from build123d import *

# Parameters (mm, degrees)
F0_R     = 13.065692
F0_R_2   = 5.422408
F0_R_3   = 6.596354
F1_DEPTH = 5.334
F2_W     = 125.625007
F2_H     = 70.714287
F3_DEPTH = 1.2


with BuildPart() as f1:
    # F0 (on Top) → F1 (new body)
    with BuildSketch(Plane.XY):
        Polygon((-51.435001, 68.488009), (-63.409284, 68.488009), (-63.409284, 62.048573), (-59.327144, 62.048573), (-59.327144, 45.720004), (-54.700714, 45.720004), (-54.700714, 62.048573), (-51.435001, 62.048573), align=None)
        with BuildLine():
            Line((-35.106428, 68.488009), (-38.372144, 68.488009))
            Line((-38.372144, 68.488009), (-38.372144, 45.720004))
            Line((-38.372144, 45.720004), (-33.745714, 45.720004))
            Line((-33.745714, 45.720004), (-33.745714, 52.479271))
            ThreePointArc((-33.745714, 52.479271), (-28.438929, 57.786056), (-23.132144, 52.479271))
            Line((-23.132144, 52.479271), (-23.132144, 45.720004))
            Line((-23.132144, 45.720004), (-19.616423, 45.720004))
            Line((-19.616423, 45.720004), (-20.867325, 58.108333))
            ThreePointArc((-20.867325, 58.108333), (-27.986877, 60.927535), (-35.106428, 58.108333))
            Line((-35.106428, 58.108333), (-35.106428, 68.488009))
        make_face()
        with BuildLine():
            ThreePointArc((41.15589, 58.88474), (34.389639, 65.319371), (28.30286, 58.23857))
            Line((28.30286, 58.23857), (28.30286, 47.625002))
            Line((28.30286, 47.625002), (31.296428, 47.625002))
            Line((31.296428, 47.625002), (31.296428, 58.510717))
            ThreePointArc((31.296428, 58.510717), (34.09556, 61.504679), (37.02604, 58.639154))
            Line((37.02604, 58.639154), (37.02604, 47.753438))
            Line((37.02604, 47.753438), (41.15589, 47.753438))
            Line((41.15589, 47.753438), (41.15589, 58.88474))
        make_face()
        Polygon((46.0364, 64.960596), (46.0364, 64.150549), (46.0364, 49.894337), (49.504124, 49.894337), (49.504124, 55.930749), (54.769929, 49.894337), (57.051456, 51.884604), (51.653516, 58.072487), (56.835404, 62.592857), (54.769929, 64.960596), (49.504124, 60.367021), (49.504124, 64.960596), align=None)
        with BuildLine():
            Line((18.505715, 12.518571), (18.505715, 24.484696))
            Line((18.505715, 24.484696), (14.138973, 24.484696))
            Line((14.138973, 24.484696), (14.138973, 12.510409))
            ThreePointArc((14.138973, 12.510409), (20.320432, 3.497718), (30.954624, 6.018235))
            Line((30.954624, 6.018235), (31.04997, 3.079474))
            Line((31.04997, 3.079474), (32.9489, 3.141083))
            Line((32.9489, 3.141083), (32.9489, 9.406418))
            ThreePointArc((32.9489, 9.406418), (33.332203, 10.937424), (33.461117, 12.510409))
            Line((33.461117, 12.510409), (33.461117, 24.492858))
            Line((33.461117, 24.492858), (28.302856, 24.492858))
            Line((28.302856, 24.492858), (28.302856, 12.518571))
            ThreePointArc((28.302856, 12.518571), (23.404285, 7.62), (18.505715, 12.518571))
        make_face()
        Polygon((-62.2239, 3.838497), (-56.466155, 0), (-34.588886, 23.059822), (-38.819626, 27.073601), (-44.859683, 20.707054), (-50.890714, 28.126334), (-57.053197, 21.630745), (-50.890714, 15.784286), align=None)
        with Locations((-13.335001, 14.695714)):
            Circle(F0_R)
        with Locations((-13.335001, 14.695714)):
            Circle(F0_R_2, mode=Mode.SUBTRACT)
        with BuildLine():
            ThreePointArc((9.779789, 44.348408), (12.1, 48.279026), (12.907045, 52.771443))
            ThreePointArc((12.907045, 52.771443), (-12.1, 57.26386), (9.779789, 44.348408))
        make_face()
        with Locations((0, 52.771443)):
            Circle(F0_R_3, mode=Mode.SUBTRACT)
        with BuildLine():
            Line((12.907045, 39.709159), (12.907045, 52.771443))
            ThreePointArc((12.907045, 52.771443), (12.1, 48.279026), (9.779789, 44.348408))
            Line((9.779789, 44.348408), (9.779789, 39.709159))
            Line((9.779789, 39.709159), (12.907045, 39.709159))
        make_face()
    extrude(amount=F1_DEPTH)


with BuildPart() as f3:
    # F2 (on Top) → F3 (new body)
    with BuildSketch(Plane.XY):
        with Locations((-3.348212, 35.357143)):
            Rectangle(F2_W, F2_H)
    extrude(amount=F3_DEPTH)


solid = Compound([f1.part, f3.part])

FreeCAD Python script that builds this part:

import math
import FreeCAD as App
import Part
import Sketcher
Q = App.Units.Quantity

doc = App.newDocument("Part")
body = doc.addObject("PartDesign::Body", "Body")
body.AllowCompound = True

# Sketch on XY plane
sketch1 = body.newObject("Sketcher::SketchObject", "Sketch")
sketch1.AttachmentSupport = (doc.getObject("XY_Plane"), [""])
sketch1.MapMode = "FlatFace"
sketch1.addGeometry([
    Part.LineSegment(App.Vector(-51.435001, 68.488009, 0), App.Vector(-63.409284, 68.488009, 0)),  # 0
    Part.LineSegment(App.Vector(-63.409284, 68.488009, 0), App.Vector(-63.409284, 62.048573, 0)),  # 1
    Part.LineSegment(App.Vector(-63.409284, 62.048573, 0), App.Vector(-59.327144, 62.048573, 0)),  # 2
    Part.LineSegment(App.Vector(-59.327144, 62.048573, 0), App.Vector(-59.327144, 45.720004, 0)),  # 3
    Part.LineSegment(App.Vector(-59.327144, 45.720004, 0), App.Vector(-54.700714, 45.720004, 0)),  # 4
    Part.LineSegment(App.Vector(-54.700714, 45.720004, 0), App.Vector(-54.700714, 62.048573, 0)),  # 5
    Part.LineSegment(App.Vector(-54.700714, 62.048573, 0), App.Vector(-51.435001, 62.048573, 0)),  # 6
    Part.LineSegment(App.Vector(-51.435001, 62.048573, 0), App.Vector(-51.435001, 68.488009, 0)),  # 7
    Part.LineSegment(App.Vector(-35.106428, 68.488009, 0), App.Vector(-38.372144, 68.488009, 0)),  # 8
    Part.LineSegment(App.Vector(-38.372144, 68.488009, 0), App.Vector(-38.372144, 45.720004, 0)),  # 9
    Part.LineSegment(App.Vector(-38.372144, 45.720004, 0), App.Vector(-33.745714, 45.720004, 0)),  # 10
    Part.LineSegment(App.Vector(-33.745714, 45.720004, 0), App.Vector(-33.745714, 52.479271, 0)),  # 11
    Part.ArcOfCircle(Part.Circle(App.Vector(-28.438929, 52.479271, 0), App.Vector(0, 0, 1), 5.306785), math.radians(0), math.radians(180)),  # 12
    Part.LineSegment(App.Vector(-23.132144, 52.479271, 0), App.Vector(-23.132144, 45.720004, 0)),  # 13
    Part.LineSegment(App.Vector(-23.132144, 45.720004, 0), App.Vector(-19.616423, 45.720004, 0)),  # 14
    Part.LineSegment(App.Vector(-19.616423, 45.720004, 0), App.Vector(-20.867325, 58.108333, 0)),  # 15
    Part.ArcOfCircle(Part.Circle(App.Vector(-27.986877, 50.528154, 0), App.Vector(0, 0, 1), 10.399381), math.radians(46.794822), math.radians(133.205178)),  # 16
    Part.LineSegment(App.Vector(-35.106428, 58.108333, 0), App.Vector(-35.106428, 68.488009, 0)),  # 17
    Part.ArcOfCircle(Part.Circle(App.Vector(34.713132, 58.88474, 0), App.Vector(0, 0, 1), 6.442758), math.radians(0.000002), math.radians(185.756099)),  # 18
    Part.LineSegment(App.Vector(28.30286, 58.23857, 0), App.Vector(28.30286, 47.625002, 0)),  # 19
    Part.LineSegment(App.Vector(28.30286, 47.625002, 0), App.Vector(31.296428, 47.625002, 0)),  # 20
    Part.LineSegment(App.Vector(31.296428, 47.625002, 0), App.Vector(31.296428, 58.510717, 0)),  # 21
    Part.ArcOfCircle(Part.Circle(App.Vector(34.159794, 58.639153, 0), App.Vector(0, 0, 1), 2.866246), math.radians(0.000013), math.radians(182.568281)),  # 22
    Part.LineSegment(App.Vector(37.02604, 58.639154, 0), App.Vector(37.02604, 47.753438, 0)),  # 23
    Part.LineSegment(App.Vector(37.02604, 47.753438, 0), App.Vector(41.15589, 47.753438, 0)),  # 24
    Part.LineSegment(App.Vector(41.15589, 47.753438, 0), App.Vector(41.15589, 58.88474, 0)),  # 25
    Part.LineSegment(App.Vector(46.0364, 64.960596, 0), App.Vector(46.0364, 49.894337, 0)),  # 26
    Part.LineSegment(App.Vector(46.0364, 49.894337, 0), App.Vector(49.504124, 49.894337, 0)),  # 27
    Part.LineSegment(App.Vector(49.504124, 49.894337, 0), App.Vector(49.504124, 55.930749, 0)),  # 28
    Part.LineSegment(App.Vector(49.504124, 55.930749, 0), App.Vector(54.769929, 49.894337, 0)),  # 29
    Part.LineSegment(App.Vector(54.769929, 49.894337, 0), App.Vector(57.051456, 51.884604, 0)),  # 30
    Part.LineSegment(App.Vector(57.051456, 51.884604, 0), App.Vector(51.653516, 58.072487, 0)),  # 31
    Part.LineSegment(App.Vector(51.653516, 58.072487, 0), App.Vector(56.835404, 62.592857, 0)),  # 32
    Part.LineSegment(App.Vector(56.835404, 62.592857, 0), App.Vector(54.769929, 64.960596, 0)),  # 33
    Part.LineSegment(App.Vector(54.769929, 64.960596, 0), App.Vector(49.504124, 60.367021, 0)),  # 34
    Part.LineSegment(App.Vector(49.504124, 60.367021, 0), App.Vector(49.504124, 64.960596, 0)),  # 35
    Part.LineSegment(App.Vector(49.504124, 64.960596, 0), App.Vector(46.0364, 64.960596, 0)),  # 36
    Part.LineSegment(App.Vector(18.505715, 12.518571, 0), App.Vector(18.505715, 24.484696, 0)),  # 37
    Part.LineSegment(App.Vector(18.505715, 24.484696, 0), App.Vector(14.138973, 24.484696, 0)),  # 38
    Part.LineSegment(App.Vector(14.138973, 24.484696, 0), App.Vector(14.138973, 12.510409, 0)),  # 39
    Part.ArcOfCircle(Part.Circle(App.Vector(23.800046, 12.51041, 0), App.Vector(0, 0, 1), 9.661073), math.radians(-179.999995), math.radians(-42.221085)),  # 40
    Part.LineSegment(App.Vector(30.954624, 6.018235, 0), App.Vector(31.04997, 3.079474, 0)),  # 41
    Part.LineSegment(App.Vector(31.04997, 3.079474, 0), App.Vector(32.9489, 3.141083, 0)),  # 42
    Part.LineSegment(App.Vector(32.9489, 3.141083, 0), App.Vector(32.9489, 9.406418, 0)),  # 43
    Part.ArcOfCircle(Part.Circle(App.Vector(23.800075, 12.510405, 0), App.Vector(0, 0, 1), 9.661042), math.radians(-18.740898), math.radians(0.000026)),  # 44
    Part.LineSegment(App.Vector(33.461117, 12.510409, 0), App.Vector(33.461117, 24.492858, 0)),  # 45
    Part.LineSegment(App.Vector(33.461117, 24.492858, 0), App.Vector(28.302856, 24.492858, 0)),  # 46
    Part.LineSegment(App.Vector(28.302856, 24.492858, 0), App.Vector(28.302856, 12.518571, 0)),  # 47
    Part.ArcOfCircle(Part.Circle(App.Vector(23.404286, 12.51857, 0), App.Vector(0, 0, 1), 4.89857), math.radians(179.999994), math.radians(360.000006)),  # 48
    Part.LineSegment(App.Vector(-62.2239, 3.838497, 0), App.Vector(-56.466155, 0, 0)),  # 49
    Part.LineSegment(App.Vector(-56.466155, 0, 0), App.Vector(-34.588886, 23.059822, 0)),  # 50
    Part.LineSegment(App.Vector(-34.588886, 23.059822, 0), App.Vector(-38.819626, 27.073601, 0)),  # 51
    Part.LineSegment(App.Vector(-38.819626, 27.073601, 0), App.Vector(-44.859683, 20.707054, 0)),  # 52
    Part.LineSegment(App.Vector(-44.859683, 20.707054, 0), App.Vector(-50.890714, 28.126334, 0)),  # 53
    Part.LineSegment(App.Vector(-50.890714, 28.126334, 0), App.Vector(-57.053197, 21.630745, 0)),  # 54
    Part.LineSegment(App.Vector(-57.053197, 21.630745, 0), App.Vector(-50.890714, 15.784286, 0)),  # 55
    Part.LineSegment(App.Vector(-50.890714, 15.784286, 0), App.Vector(-62.2239, 3.838497, 0)),  # 56
    Part.Circle(App.Vector(-13.335001, 14.695714, 0), App.Vector(0, 0, 1), 13.065692),  # 57
    Part.Circle(App.Vector(-13.335001, 14.695714, 0), App.Vector(0, 0, 1), 5.422408),  # 58
    Part.ArcOfCircle(Part.Circle(App.Vector(0, 52.771444, 0), App.Vector(0, 0, 1), 12.907045), math.radians(-0.000005), math.radians(319.262675)),  # 59
    Part.LineSegment(App.Vector(9.779789, 44.348408, 0), App.Vector(9.779789, 39.709159, 0)),  # 60
    Part.LineSegment(App.Vector(9.779789, 39.709159, 0), App.Vector(12.907045, 39.709159, 0)),  # 61
    Part.LineSegment(App.Vector(12.907045, 39.709159, 0), App.Vector(12.907045, 52.771443, 0)),  # 62
    Part.Circle(App.Vector(0, 52.771443, 0), App.Vector(0, 0, 1), 6.596354),  # 63
], False)
sketch1.addConstraint([
    Sketcher.Constraint("Coincident", 0, 2, 1, 1),
    Sketcher.Constraint("Coincident", 1, 2, 2, 1),
    Sketcher.Constraint("Coincident", 2, 2, 3, 1),
    Sketcher.Constraint("Coincident", 3, 2, 4, 1),
    Sketcher.Constraint("Coincident", 4, 2, 5, 1),
    Sketcher.Constraint("Coincident", 5, 2, 6, 1),
    Sketcher.Constraint("Coincident", 6, 2, 7, 1),
    Sketcher.Constraint("Coincident", 7, 2, 0, 1),
    Sketcher.Constraint("Coincident", 8, 2, 9, 1),
    Sketcher.Constraint("Coincident", 9, 2, 10, 1),
    Sketcher.Constraint("Coincident", 10, 2, 11, 1),
    Sketcher.Constraint("Tangent", 11, 2, 12, 2),
    Sketcher.Constraint("Tangent", 12, 1, 13, 1),
    Sketcher.Constraint("Coincident", 13, 2, 14, 1),
    Sketcher.Constraint("Coincident", 14, 2, 15, 1),
    Sketcher.Constraint("Coincident", 15, 2, 16, 1),
    Sketcher.Constraint("Coincident", 16, 2, 17, 1),
    Sketcher.Constraint("Coincident", 17, 2, 8, 1),
    Sketcher.Constraint("Coincident", 18, 2, 19, 1),
    Sketcher.Constraint("Coincident", 19, 2, 20, 1),
    Sketcher.Constraint("Coincident", 20, 2, 21, 1),
    Sketcher.Constraint("Coincident", 21, 2, 22, 2),
    Sketcher.Constraint("Tangent", 22, 1, 23, 1),
    Sketcher.Constraint("Coincident", 23, 2, 24, 1),
    Sketcher.Constraint("Coincident", 24, 2, 25, 1),
    Sketcher.Constraint("Tangent", 25, 2, 18, 1),
    Sketcher.Constraint("Coincident", 26, 2, 27, 1),
    Sketcher.Constraint("Coincident", 27, 2, 28, 1),
    Sketcher.Constraint("Coincident", 28, 2, 29, 1),
    Sketcher.Constraint("Coincident", 29, 2, 30, 1),
    Sketcher.Constraint("Coincident", 30, 2, 31, 1),
    Sketcher.Constraint("Coincident", 31, 2, 32, 1),
    Sketcher.Constraint("Coincident", 32, 2, 33, 1),
    Sketcher.Constraint("Coincident", 33, 2, 34, 1),
    Sketcher.Constraint("Coincident", 34, 2, 35, 1),
    Sketcher.Constraint("Coincident", 35, 2, 36, 1),
    Sketcher.Constraint("Coincident", 36, 2, 26, 1),
    Sketcher.Constraint("Coincident", 37, 2, 38, 1),
    Sketcher.Constraint("Coincident", 38, 2, 39, 1),
    Sketcher.Constraint("Tangent", 39, 2, 40, 1),
    Sketcher.Constraint("Coincident", 40, 2, 41, 1),
    Sketcher.Constraint("Coincident", 41, 2, 42, 1),
    Sketcher.Constraint("Coincident", 42, 2, 43, 1),
    Sketcher.Constraint("Coincident", 43, 2, 44, 1),
    Sketcher.Constraint("Tangent", 44, 2, 45, 1),
    Sketcher.Constraint("Coincident", 45, 2, 46, 1),
    Sketcher.Constraint("Coincident", 46, 2, 47, 1),
    Sketcher.Constraint("Tangent", 47, 2, 48, 2),
    Sketcher.Constraint("Tangent", 48, 1, 37, 1),
    Sketcher.Constraint("Coincident", 49, 2, 50, 1),
    Sketcher.Constraint("Coincident", 50, 2, 51, 1),
    Sketcher.Constraint("Coincident", 51, 2, 52, 1),
    Sketcher.Constraint("Coincident", 52, 2, 53, 1),
    Sketcher.Constraint("Coincident", 53, 2, 54, 1),
    Sketcher.Constraint("Coincident", 54, 2, 55, 1),
    Sketcher.Constraint("Coincident", 55, 2, 56, 1),
    Sketcher.Constraint("Coincident", 56, 2, 49, 1),
    Sketcher.Constraint("Coincident", 59, 2, 60, 1),
    Sketcher.Constraint("Coincident", 60, 2, 61, 1),
    Sketcher.Constraint("Coincident", 61, 2, 62, 1),
    Sketcher.Constraint("Tangent", 62, 2, 59, 1),
    Sketcher.Constraint("Horizontal", 0),
    Sketcher.Constraint("Vertical", 1),
    Sketcher.Constraint("Horizontal", 2),
    Sketcher.Constraint("Vertical", 3),
    Sketcher.Constraint("Horizontal", 4),
    Sketcher.Constraint("Vertical", 5),
    Sketcher.Constraint("Horizontal", 6),
    Sketcher.Constraint("Vertical", 7),
    Sketcher.Constraint("Horizontal", 8),
    Sketcher.Constraint("Vertical", 9),
    Sketcher.Constraint("Horizontal", 10),
    Sketcher.Constraint("Vertical", 11),
    Sketcher.Constraint("Vertical", 13),
    Sketcher.Constraint("Horizontal", 14),
    Sketcher.Constraint("Vertical", 17),
    Sketcher.Constraint("Vertical", 19),
    Sketcher.Constraint("Horizontal", 20),
    Sketcher.Constraint("Vertical", 21),
    Sketcher.Constraint("Vertical", 23),
    Sketcher.Constraint("Horizontal", 24),
    Sketcher.Constraint("Vertical", 25),
    Sketcher.Constraint("Vertical", 26),
    Sketcher.Constraint("Horizontal", 27),
    Sketcher.Constraint("Vertical", 28),
    Sketcher.Constraint("Vertical", 35),
    Sketcher.Constraint("Horizontal", 36),
    Sketcher.Constraint("Vertical", 37),
    Sketcher.Constraint("Horizontal", 38),
    Sketcher.Constraint("Vertical", 39),
    Sketcher.Constraint("Vertical", 43),
    Sketcher.Constraint("Vertical", 45),
    Sketcher.Constraint("Horizontal", 46),
    Sketcher.Constraint("Vertical", 47),
    Sketcher.Constraint("Vertical", 60),
    Sketcher.Constraint("Horizontal", 61),
    Sketcher.Constraint("Vertical", 62),
    Sketcher.Constraint("Coincident", 58, 3, 57, 3),
    Sketcher.Constraint("Coincident", 63, 3, 59, 3),
    Sketcher.Constraint("PointOnObject", 59, 3, -2),
    Sketcher.Constraint("PointOnObject", 49, 2, -1),
    Sketcher.Constraint("Perpendicular", 29, 30),
    Sketcher.Constraint("Perpendicular", 30, 31),
    Sketcher.Constraint("Perpendicular", 31, 32),
    Sketcher.Constraint("Perpendicular", 32, 33),
    Sketcher.Constraint("Perpendicular", 33, 34),
    Sketcher.Constraint("Perpendicular", 41, 42),
    Sketcher.Constraint("Perpendicular", 50, 51),
    Sketcher.Constraint("Perpendicular", 51, 52),
    Sketcher.Constraint("Parallel", 52, 54),
    Sketcher.Constraint("Perpendicular", 54, 55),
    Sketcher.Constraint("Perpendicular", 55, 56),
    Sketcher.Constraint("Horizontal", 2, 2, 5, 2),
    Sketcher.Constraint("Horizontal", 7, 2, 8, 2),
    Sketcher.Constraint("Horizontal", 4, 2, 9, 2),
    Sketcher.Constraint("Horizontal", 10, 2, 13, 2),
    Sketcher.Constraint("Horizontal", 15, 2, 16, 2),
    Sketcher.Constraint("Horizontal", 27, 2, 29, 2),
    Sketcher.Constraint("Horizontal", 33, 2, 35, 2),
    Sketcher.Constraint("Horizontal", 39, 2, 44, 2),
    Sketcher.Constraint("Vertical", 29, 2, 33, 2),
    Sketcher.Constraint("Vertical", 28, 2, 34, 2),
    Sketcher.Constraint("Vertical", 53, 2, 55, 2),
    Sketcher.Constraint("Equal", 4, 10),
    Sketcher.Constraint("Equal", 21, 23),
    Sketcher.Constraint("Equal", 39, 47),
    Sketcher.Constraint("Radius", 16, Q("10.399381 mm")),
    Sketcher.Constraint("Radius", 44, Q("9.661042 mm")),
    Sketcher.Constraint("Radius", 48, Q("4.89857 mm")),
    Sketcher.Constraint("Diameter", 57, Q("26.131384 mm")),
    Sketcher.Constraint("Diameter", 58, Q("10.844816 mm")),
    Sketcher.Constraint("Diameter", 63, Q("13.192708 mm")),
    Sketcher.Constraint("DistanceY", 25, 1, 25, 2, Q("11.131302 mm")),
    Sketcher.Constraint("DistanceX", 57, 3, -1, 1, Q("13.335001 mm")),
    Sketcher.Constraint("DistanceX", 6, 2, -1, 1, Q("51.435001 mm")),
    Sketcher.Constraint("Radius", 12, Q("5.306785 mm")),
    Sketcher.Constraint("Radius", 18, Q("6.442758 mm")),
    Sketcher.Constraint("Radius", 22, Q("2.866246 mm")),
    Sketcher.Constraint("Radius", 40, Q("9.661073 mm")),
    Sketcher.Constraint("Radius", 59, Q("12.907045 mm")),
    Sketcher.Constraint("DistanceX", 2, 1, 2, 2, Q("4.08214 mm")),
    Sketcher.Constraint("DistanceX", 4, 1, 4, 2, Q("4.62643 mm")),
    Sketcher.Constraint("DistanceX", 14, 1, 14, 2, Q("3.515721 mm")),
    Sketcher.Constraint("DistanceX", 24, 1, 24, 2, Q("4.12985 mm")),
    Sketcher.Constraint("DistanceX", 38, 2, 38, 1, Q("4.366742 mm")),
    Sketcher.Constraint("DistanceX", 46, 2, 46, 1, Q("5.158261 mm")),
    Sketcher.Constraint("DistanceY", 3, 2, 3, 1, Q("16.328569 mm")),
    Sketcher.Constraint("DistanceY", 19, 2, 19, 1, Q("10.613568 mm")),
    Sketcher.Constraint("DistanceY", 26, 2, 26, 1, Q("15.066259 mm")),
    Sketcher.Constraint("DistanceY", 28, 1, 28, 2, Q("6.036412 mm")),
    Sketcher.Constraint("DistanceY", 45, 1, 45, 2, Q("11.982449 mm")),
    Sketcher.Constraint("DistanceY", 60, 2, 60, 1, Q("4.639249 mm")),
    Sketcher.Constraint("DistanceX", -1, 1, 26, 2, Q("46.0364 mm")),
    Sketcher.Constraint("DistanceX", -1, 1, 42, 2, Q("32.9489 mm")),
    Sketcher.Constraint("DistanceY", -1, 1, 51, 2, Q("27.073601 mm")),
    Sketcher.Constraint("DistanceX", 56, 2, -1, 1, Q("62.2239 mm")),
    Sketcher.Constraint("Distance", 29, Q("8.010429 mm")),
    Sketcher.Constraint("Distance", 32, Q("6.87646 mm")),
    Sketcher.Constraint("Distance", 42, Q("1.899929 mm")),
    Sketcher.Constraint("Distance", 49, Q("6.919948 mm")),
    Sketcher.Constraint("Distance", 52, Q("8.775831 mm")),
    Sketcher.Constraint("Distance", 53, Q("9.561331 mm")),
    Sketcher.Constraint("Distance", 56, Q("16.46642 mm")),
    Sketcher.Constraint("DistanceX", 0, 2, 0, 1, Q("11.974283 mm")),
    Sketcher.Constraint("DistanceX", 8, 2, 8, 1, Q("3.265716 mm")),
    Sketcher.Constraint("DistanceX", 20, 1, 20, 2, Q("2.993568 mm")),
    Sketcher.Constraint("DistanceX", 27, 1, 27, 2, Q("3.467724 mm")),
    Sketcher.Constraint("DistanceX", 61, 1, 61, 2, Q("3.127256 mm")),
    Sketcher.Constraint("DistanceY", 1, 2, 1, 1, Q("6.439436 mm")),
    Sketcher.Constraint("DistanceY", 11, 1, 11, 2, Q("6.759267 mm")),
    Sketcher.Constraint("DistanceY", 17, 1, 17, 2, Q("10.379676 mm")),
    Sketcher.Constraint("DistanceY", 21, 1, 21, 2, Q("10.885715 mm")),
    Sketcher.Constraint("DistanceY", 37, 1, 37, 2, Q("11.966125 mm")),
    Sketcher.Constraint("DistanceY", 43, 1, 43, 2, Q("6.265335 mm")),
    Sketcher.Constraint("DistanceX", 12, 3, -1, 1, Q("28.438929 mm")),
    Sketcher.Constraint("DistanceY", -1, 1, 12, 3, Q("52.479271 mm")),
    Sketcher.Constraint("DistanceY", -1, 1, 18, 3, Q("58.88474 mm")),
    Sketcher.Constraint("DistanceY", -1, 1, 40, 3, Q("12.51041 mm")),
    Sketcher.Constraint("DistanceX", -1, 1, 18, 2, Q("28.30286 mm")),
    Sketcher.Constraint("DistanceY", -1, 1, 28, 2, Q("55.930749 mm")),
    Sketcher.Constraint("DistanceX", -1, 1, 41, 2, Q("31.04997 mm")),
    Sketcher.Constraint("DistanceY", -1, 1, 59, 2, Q("44.348408 mm")),
    Sketcher.Constraint("Distance", 15, Q("12.451323 mm")),
    Sketcher.Constraint("Distance", 31, Q("8.211434 mm")),
    Sketcher.Constraint("Distance", 41, Q("2.940307 mm")),
    Sketcher.Constraint("Distance", 50, Q("31.786322 mm")),
    Sketcher.Constraint("Distance", 51, Q("5.831774 mm")),
    Sketcher.Constraint("Distance", 54, Q("8.953707 mm")),
    Sketcher.Constraint("DistanceY", -1, 1, 57, 3, Q("14.695714 mm")),
])
pad1 = body.newObject("PartDesign::Pad", "Pad")
pad1.Profile = sketch1
pad1.Length = 5.334
body2 = doc.addObject("PartDesign::Body", "Body001")

# Sketch on XY plane
sketch2 = body2.newObject("Sketcher::SketchObject", "Sketch001")
sketch2.AttachmentSupport = (doc.getObject("XY_Plane001"), [""])
sketch2.MapMode = "FlatFace"
sketch2.addGeometry([
    Part.LineSegment(App.Vector(-66, 71, 0), App.Vector(-66, 0, 0)),
    Part.LineSegment(App.Vector(-66, 0, 0), App.Vector(59, 0, 0)),
    Part.LineSegment(App.Vector(59, 0, 0), App.Vector(59, 71, 0)),
    Part.LineSegment(App.Vector(59, 71, 0), App.Vector(-66, 71, 0)),
], False)
sketch2.addConstraint([
    Sketcher.Constraint("Coincident", 0, 2, 1, 1),
    Sketcher.Constraint("Coincident", 1, 2, 2, 1),
    Sketcher.Constraint("Coincident", 2, 2, 3, 1),
    Sketcher.Constraint("Coincident", 3, 2, 0, 1),
    Sketcher.Constraint("Vertical", 0),
    Sketcher.Constraint("Horizontal", 1),
    Sketcher.Constraint("Vertical", 2),
    Sketcher.Constraint("Horizontal", 3),
    Sketcher.Constraint("PointOnObject", 0, 2, -1),
    Sketcher.Constraint("DistanceX", 1, 1, 1, 2, Q("125.625007 mm")),
    Sketcher.Constraint("DistanceY", 0, 2, 0, 1, Q("70.714287 mm")),
    Sketcher.Constraint("DistanceX", -1, 1, 1, 2, Q("59.464292 mm")),
])
pad2 = body2.newObject("PartDesign::Pad", "Pad001")
pad2.Profile = sketch2
pad2.Length = 1.2

doc.recompute()
